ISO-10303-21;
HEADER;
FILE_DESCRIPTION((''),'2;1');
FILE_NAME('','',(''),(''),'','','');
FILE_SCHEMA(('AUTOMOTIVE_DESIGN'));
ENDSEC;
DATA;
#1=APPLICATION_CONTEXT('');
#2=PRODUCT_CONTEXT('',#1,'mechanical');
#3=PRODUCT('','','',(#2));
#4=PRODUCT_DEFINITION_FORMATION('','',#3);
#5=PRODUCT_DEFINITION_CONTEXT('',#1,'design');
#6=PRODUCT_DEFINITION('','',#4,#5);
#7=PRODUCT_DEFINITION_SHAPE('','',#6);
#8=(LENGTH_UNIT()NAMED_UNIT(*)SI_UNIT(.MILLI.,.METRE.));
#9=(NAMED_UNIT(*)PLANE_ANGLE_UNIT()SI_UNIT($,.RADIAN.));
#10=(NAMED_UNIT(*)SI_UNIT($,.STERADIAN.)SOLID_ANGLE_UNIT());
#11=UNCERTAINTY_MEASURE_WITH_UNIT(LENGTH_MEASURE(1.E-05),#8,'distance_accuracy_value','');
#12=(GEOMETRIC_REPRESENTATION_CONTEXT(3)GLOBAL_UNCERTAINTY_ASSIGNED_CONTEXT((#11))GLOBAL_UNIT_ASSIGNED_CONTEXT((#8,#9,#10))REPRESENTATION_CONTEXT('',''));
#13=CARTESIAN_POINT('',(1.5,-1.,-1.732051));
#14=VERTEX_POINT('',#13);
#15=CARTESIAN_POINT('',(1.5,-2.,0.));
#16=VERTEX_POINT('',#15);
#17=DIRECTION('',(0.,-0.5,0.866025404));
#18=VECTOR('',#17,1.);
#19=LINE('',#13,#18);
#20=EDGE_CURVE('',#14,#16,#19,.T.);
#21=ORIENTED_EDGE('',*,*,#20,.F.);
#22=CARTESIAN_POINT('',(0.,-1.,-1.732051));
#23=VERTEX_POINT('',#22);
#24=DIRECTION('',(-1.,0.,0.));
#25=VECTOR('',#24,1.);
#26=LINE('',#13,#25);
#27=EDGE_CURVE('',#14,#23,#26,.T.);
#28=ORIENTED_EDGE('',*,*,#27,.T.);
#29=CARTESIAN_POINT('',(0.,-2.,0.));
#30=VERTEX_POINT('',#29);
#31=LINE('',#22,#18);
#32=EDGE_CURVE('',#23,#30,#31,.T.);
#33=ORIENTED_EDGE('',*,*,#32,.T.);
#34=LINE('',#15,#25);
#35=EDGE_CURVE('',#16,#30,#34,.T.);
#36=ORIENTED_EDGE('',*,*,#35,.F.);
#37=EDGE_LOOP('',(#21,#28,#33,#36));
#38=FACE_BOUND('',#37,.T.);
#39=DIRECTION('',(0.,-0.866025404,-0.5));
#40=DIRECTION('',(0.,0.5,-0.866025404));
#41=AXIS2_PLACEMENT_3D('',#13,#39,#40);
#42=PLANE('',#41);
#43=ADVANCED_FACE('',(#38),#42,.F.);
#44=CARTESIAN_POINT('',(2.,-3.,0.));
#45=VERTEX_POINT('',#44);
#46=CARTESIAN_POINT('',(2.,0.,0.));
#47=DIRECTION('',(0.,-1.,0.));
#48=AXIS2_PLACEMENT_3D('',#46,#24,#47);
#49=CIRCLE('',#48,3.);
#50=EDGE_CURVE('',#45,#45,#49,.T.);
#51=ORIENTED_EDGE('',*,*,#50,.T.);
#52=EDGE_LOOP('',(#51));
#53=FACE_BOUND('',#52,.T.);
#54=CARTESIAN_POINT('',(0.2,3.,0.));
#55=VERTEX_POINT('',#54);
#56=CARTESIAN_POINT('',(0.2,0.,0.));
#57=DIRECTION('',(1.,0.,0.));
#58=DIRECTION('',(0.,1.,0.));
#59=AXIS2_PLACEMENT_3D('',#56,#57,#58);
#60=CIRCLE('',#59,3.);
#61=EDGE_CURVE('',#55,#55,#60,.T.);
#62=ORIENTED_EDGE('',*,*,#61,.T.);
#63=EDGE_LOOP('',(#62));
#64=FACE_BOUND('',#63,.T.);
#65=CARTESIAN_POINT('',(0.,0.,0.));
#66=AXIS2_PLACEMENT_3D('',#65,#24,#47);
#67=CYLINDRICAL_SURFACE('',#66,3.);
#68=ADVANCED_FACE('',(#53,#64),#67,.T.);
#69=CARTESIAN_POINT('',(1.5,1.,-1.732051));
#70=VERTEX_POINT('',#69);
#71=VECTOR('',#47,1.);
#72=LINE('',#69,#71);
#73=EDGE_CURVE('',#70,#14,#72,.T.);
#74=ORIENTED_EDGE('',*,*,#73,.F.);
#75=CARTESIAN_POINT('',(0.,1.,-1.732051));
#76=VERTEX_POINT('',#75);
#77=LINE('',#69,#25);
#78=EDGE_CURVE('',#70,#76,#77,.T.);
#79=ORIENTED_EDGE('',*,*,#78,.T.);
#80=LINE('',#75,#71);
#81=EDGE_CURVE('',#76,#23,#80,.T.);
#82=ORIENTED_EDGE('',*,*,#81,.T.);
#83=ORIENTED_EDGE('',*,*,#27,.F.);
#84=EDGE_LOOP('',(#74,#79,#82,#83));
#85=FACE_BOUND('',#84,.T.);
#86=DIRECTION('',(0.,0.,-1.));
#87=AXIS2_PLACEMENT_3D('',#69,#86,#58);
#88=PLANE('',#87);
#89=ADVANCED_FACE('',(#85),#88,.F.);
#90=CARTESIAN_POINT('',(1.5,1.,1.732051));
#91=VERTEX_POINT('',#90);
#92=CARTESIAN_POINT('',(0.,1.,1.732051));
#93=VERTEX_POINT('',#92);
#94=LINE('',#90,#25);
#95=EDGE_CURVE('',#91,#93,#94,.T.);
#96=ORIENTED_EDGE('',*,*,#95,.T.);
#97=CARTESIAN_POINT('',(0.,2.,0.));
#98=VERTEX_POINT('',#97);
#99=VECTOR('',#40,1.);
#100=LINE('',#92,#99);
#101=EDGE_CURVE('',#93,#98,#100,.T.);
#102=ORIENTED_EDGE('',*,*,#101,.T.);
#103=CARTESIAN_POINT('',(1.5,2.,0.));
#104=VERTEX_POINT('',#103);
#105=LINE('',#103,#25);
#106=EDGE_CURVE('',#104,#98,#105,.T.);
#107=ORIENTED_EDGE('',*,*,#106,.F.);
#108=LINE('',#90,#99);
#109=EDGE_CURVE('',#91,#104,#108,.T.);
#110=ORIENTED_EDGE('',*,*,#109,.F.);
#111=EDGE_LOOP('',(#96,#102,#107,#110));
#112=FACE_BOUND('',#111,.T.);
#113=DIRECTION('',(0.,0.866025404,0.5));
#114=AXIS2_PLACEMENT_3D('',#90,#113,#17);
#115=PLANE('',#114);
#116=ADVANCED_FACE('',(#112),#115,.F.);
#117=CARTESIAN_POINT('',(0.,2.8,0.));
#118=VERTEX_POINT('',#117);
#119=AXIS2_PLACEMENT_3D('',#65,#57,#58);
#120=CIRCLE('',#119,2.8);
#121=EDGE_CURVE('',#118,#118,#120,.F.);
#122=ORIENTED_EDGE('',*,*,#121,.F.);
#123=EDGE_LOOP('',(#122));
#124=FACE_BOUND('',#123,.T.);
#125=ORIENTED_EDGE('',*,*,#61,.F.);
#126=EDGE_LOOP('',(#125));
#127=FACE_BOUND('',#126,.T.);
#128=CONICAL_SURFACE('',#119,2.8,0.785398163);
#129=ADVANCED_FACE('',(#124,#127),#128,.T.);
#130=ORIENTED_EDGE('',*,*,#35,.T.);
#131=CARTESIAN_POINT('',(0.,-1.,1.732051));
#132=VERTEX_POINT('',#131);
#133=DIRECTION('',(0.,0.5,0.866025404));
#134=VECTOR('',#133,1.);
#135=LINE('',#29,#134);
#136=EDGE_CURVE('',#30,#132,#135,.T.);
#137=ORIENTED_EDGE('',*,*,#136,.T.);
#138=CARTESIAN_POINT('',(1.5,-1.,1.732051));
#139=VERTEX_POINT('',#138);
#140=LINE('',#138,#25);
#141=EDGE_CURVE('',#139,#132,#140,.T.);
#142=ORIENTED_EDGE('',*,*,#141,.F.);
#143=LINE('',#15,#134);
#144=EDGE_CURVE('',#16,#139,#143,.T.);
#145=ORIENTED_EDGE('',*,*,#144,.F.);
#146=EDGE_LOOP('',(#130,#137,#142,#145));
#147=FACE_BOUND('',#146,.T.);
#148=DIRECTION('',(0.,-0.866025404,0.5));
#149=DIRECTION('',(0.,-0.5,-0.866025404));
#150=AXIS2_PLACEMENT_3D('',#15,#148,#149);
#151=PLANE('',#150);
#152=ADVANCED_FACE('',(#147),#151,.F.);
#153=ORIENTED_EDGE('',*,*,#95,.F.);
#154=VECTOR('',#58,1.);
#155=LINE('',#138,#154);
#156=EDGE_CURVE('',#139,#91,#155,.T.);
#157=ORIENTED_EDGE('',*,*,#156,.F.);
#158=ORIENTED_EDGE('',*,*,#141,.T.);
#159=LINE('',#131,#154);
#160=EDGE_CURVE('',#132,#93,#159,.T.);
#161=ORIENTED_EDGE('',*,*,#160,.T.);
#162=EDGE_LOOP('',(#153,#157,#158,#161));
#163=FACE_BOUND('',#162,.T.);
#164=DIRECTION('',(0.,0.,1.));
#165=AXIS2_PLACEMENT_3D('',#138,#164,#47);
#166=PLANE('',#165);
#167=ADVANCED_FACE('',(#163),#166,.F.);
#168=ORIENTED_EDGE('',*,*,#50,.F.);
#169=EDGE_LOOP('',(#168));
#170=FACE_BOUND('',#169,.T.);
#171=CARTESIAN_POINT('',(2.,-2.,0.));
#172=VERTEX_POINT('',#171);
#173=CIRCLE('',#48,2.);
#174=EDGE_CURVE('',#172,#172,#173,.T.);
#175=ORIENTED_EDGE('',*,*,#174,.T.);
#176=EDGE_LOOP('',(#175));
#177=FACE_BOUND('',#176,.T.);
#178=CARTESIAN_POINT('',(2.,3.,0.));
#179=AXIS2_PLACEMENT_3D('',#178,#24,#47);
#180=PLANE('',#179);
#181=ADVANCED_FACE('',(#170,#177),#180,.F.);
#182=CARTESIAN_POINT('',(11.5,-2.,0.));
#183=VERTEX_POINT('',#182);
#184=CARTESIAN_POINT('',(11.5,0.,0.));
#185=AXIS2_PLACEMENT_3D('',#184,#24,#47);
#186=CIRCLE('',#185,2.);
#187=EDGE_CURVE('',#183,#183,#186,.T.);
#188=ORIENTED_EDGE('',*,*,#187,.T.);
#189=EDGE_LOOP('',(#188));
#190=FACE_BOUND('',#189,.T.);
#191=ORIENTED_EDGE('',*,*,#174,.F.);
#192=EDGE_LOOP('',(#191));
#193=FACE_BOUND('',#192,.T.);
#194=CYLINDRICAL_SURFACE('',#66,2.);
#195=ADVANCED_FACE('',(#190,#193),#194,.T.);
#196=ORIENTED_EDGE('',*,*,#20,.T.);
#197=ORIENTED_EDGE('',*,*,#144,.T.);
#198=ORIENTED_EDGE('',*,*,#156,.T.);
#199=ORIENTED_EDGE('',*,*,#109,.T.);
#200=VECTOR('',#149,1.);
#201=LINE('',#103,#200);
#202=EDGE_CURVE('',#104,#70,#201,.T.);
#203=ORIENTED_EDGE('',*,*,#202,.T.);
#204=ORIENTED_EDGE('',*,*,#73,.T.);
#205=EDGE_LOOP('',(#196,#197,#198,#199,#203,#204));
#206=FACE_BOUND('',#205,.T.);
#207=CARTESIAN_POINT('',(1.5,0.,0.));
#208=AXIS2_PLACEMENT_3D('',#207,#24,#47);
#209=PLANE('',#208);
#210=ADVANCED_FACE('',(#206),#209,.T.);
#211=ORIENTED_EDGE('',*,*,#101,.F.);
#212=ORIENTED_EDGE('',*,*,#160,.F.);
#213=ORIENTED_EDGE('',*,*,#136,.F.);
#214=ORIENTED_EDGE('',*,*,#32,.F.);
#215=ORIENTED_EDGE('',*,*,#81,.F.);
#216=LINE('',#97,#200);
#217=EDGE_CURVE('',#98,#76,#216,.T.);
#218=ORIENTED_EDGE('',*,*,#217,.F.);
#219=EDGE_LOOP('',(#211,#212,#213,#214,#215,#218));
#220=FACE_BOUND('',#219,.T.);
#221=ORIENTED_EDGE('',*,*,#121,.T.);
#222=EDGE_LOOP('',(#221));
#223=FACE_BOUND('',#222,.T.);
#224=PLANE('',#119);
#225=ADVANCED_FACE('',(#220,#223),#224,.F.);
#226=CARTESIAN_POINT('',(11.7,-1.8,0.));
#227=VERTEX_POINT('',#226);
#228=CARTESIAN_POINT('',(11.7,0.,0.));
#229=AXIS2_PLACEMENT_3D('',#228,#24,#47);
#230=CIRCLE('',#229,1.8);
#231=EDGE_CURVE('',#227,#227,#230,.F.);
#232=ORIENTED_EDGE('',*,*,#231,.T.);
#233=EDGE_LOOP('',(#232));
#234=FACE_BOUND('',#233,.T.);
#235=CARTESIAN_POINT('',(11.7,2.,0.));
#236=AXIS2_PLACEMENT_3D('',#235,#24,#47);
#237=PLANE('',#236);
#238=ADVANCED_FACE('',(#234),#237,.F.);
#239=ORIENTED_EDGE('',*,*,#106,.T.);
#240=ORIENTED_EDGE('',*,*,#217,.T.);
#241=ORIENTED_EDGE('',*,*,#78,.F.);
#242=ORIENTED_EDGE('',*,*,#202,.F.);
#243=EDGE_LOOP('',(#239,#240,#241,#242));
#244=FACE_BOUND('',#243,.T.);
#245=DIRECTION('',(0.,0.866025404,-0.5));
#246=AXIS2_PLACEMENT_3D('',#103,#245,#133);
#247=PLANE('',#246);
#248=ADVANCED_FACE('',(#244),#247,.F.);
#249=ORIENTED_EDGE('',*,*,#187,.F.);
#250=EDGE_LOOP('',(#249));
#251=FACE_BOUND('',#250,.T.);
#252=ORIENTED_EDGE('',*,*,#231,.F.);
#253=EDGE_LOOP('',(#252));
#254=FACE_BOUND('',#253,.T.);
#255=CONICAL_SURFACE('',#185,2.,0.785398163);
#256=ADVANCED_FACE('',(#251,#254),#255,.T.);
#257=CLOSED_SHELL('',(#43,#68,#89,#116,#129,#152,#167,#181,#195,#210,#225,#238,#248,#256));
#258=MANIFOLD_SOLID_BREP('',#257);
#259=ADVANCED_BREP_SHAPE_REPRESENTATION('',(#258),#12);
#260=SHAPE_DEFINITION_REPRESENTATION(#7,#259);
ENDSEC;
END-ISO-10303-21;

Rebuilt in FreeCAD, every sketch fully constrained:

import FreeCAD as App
import Part
import Sketcher
Q = App.Units.Quantity


def edges_at(feature, points):
    """Names of the edges that pass closest to the given points."""
    edges = feature.Shape.Edges
    near = lambda p: min(range(len(edges)), key=lambda i: edges[i].distToShape(Part.Vertex(*p))[0])
    return sorted({f"Edge{near(p) + 1}" for p in points})

doc = App.newDocument("Part")
params = doc.addObject("Spreadsheet::Sheet", "Params")
for row, (alias, value) in enumerate([
    ("sketch1_width", "2 mm"),
    ("sketch1_height", "3 mm"),
    ("sketch1_width2", "11.7 mm"),
    ("revolution_angle", "360 deg"),
    ("sketch2_width", "2 mm"),
    ("sketch2_length", "2 mm"),
    ("pocket1_length", "1.5 mm"),
    ("chamfer_size", "0.2 mm"),
], start=1):
    params.set(f"A{row}", alias)
    params.set(f"B{row}", "=" + value)
    params.setAlias(f"B{row}", alias)

body = doc.addObject("PartDesign::Body", "Body")

# Sketch on XY plane
sketch1 = body.newObject("Sketcher::SketchObject", "Sketch")
sketch1.AttachmentSupport = (doc.getObject("XY_Plane"), [""])
sketch1.MapMode = "FlatFace"
sketch1.addGeometry([
    Part.LineSegment(App.Vector(0, 3, 0), App.Vector(0, 0, 0)),  # 0
    Part.LineSegment(App.Vector(0, 0, 0), App.Vector(11.7, 0, 0)),  # 1
    Part.LineSegment(App.Vector(11.7, 0, 0), App.Vector(11.7, 2, 0)),  # 2
    Part.LineSegment(App.Vector(11.7, 2, 0), App.Vector(2, 2, 0)),  # 3
    Part.LineSegment(App.Vector(2, 2, 0), App.Vector(2, 3, 0)),  # 4
    Part.LineSegment(App.Vector(2, 3, 0), App.Vector(0, 3, 0)),  # 5
], False)
sketch1.addConstraint([
    Sketcher.Constraint("Coincident", 0, 2, 1, 1),
    Sketcher.Constraint("Coincident", 1, 2, 2, 1),
    Sketcher.Constraint("Coincident", 2, 2, 3, 1),
    Sketcher.Constraint("Coincident", 3, 2, 4, 1),
    Sketcher.Constraint("Coincident", 4, 2, 5, 1),
    Sketcher.Constraint("Coincident", 5, 2, 0, 1),
    Sketcher.Constraint("Vertical", 0),
    Sketcher.Constraint("Horizontal", 1),
    Sketcher.Constraint("Vertical", 2),
    Sketcher.Constraint("Horizontal", 3),
    Sketcher.Constraint("Vertical", 4),
    Sketcher.Constraint("Horizontal", 5),
    Sketcher.Constraint("Coincident", 0, 2, -1, 1),
    Sketcher.Constraint("Equal", 5, 2),
    Sketcher.Constraint("DistanceX", 5, 2, 5, 1, 2.0),
    Sketcher.Constraint("DistanceY", 0, 2, 0, 1, 3.0),
    Sketcher.Constraint("DistanceX", 1, 1, 1, 2, 11.7),
])
sketch1.setExpression("Constraints[14]", "Params.sketch1_width")
sketch1.setExpression("Constraints[15]", "Params.sketch1_height")
sketch1.setExpression("Constraints[16]", "Params.sketch1_width2")
revolution = body.newObject("PartDesign::Revolution", "Revolution")
revolution.Profile = sketch1
revolution.ReferenceAxis = (sketch1, ["H_Axis"])
revolution.setExpression("Angle", "Params.revolution_angle")

# Sketch on YZ plane
sketch2 = body.newObject("Sketcher::SketchObject", "Sketch001")
sketch2.AttachmentSupport = (doc.getObject("YZ_Plane"), [""])
sketch2.MapMode = "FlatFace"
sketch2.addGeometry([
    Part.LineSegment(App.Vector(2, 0, 0), App.Vector(1, -1.732051, 0)),  # 0
    Part.LineSegment(App.Vector(1, -1.732051, 0), App.Vector(-1, -1.732051, 0)),  # 1
    Part.LineSegment(App.Vector(-1, -1.732051, 0), App.Vector(-2, 0, 0)),  # 2
    Part.LineSegment(App.Vector(-2, 0, 0), App.Vector(-1, 1.732051, 0)),  # 3
    Part.LineSegment(App.Vector(-1, 1.732051, 0), App.Vector(1, 1.732051, 0)),  # 4
    Part.LineSegment(App.Vector(1, 1.732051, 0), App.Vector(2, 0, 0)),  # 5
], False)
sketch2.addConstraint([
    Sketcher.Constraint("Coincident", 0, 2, 1, 1),
    Sketcher.Constraint("Coincident", 1, 2, 2, 1),
    Sketcher.Constraint("Coincident", 2, 2, 3, 1),
    Sketcher.Constraint("Coincident", 3, 2, 4, 1),
    Sketcher.Constraint("Coincident", 4, 2, 5, 1),
    Sketcher.Constraint("Coincident", 5, 2, 0, 1),
    Sketcher.Constraint("Horizontal", 1),
    Sketcher.Constraint("Horizontal", 4),
    Sketcher.Constraint("Symmetric", 0, 2, 3, 2, -1, 1),
    Sketcher.Constraint("Symmetric", 2, 2, 5, 2, -1, 1),
    Sketcher.Constraint("PointOnObject", 2, 2, -1),
    Sketcher.Constraint("Parallel", 2, 5),
    Sketcher.Constraint("Vertical", 1, 2, 3, 2),
    Sketcher.Constraint("DistanceX", 1, 2, 1, 1, 2.0),
    Sketcher.Constraint("Angle", 0, Q("-120 deg")),
    Sketcher.Constraint("Distance", 0, 2.0),
])
sketch2.setExpression("Constraints[13]", "Params.sketch2_width")
sketch2.setExpression("Constraints[15]", "Params.sketch2_length")
pocket1 = body.newObject("PartDesign::Pocket", "Pocket")
pocket1.Profile = sketch2
pocket1.setExpression("Length", "Params.pocket1_length")
pocket1.Reversed = True
doc.recompute()

chamfer = body.newObject("PartDesign::Chamfer", "Chamfer")
chamfer.Base = (pocket1, edges_at(pocket1, [(11.7, 2, 0), (0, 3, 0)]))
chamfer.setExpression("Size", "Params.chamfer_size")

doc.recompute()
